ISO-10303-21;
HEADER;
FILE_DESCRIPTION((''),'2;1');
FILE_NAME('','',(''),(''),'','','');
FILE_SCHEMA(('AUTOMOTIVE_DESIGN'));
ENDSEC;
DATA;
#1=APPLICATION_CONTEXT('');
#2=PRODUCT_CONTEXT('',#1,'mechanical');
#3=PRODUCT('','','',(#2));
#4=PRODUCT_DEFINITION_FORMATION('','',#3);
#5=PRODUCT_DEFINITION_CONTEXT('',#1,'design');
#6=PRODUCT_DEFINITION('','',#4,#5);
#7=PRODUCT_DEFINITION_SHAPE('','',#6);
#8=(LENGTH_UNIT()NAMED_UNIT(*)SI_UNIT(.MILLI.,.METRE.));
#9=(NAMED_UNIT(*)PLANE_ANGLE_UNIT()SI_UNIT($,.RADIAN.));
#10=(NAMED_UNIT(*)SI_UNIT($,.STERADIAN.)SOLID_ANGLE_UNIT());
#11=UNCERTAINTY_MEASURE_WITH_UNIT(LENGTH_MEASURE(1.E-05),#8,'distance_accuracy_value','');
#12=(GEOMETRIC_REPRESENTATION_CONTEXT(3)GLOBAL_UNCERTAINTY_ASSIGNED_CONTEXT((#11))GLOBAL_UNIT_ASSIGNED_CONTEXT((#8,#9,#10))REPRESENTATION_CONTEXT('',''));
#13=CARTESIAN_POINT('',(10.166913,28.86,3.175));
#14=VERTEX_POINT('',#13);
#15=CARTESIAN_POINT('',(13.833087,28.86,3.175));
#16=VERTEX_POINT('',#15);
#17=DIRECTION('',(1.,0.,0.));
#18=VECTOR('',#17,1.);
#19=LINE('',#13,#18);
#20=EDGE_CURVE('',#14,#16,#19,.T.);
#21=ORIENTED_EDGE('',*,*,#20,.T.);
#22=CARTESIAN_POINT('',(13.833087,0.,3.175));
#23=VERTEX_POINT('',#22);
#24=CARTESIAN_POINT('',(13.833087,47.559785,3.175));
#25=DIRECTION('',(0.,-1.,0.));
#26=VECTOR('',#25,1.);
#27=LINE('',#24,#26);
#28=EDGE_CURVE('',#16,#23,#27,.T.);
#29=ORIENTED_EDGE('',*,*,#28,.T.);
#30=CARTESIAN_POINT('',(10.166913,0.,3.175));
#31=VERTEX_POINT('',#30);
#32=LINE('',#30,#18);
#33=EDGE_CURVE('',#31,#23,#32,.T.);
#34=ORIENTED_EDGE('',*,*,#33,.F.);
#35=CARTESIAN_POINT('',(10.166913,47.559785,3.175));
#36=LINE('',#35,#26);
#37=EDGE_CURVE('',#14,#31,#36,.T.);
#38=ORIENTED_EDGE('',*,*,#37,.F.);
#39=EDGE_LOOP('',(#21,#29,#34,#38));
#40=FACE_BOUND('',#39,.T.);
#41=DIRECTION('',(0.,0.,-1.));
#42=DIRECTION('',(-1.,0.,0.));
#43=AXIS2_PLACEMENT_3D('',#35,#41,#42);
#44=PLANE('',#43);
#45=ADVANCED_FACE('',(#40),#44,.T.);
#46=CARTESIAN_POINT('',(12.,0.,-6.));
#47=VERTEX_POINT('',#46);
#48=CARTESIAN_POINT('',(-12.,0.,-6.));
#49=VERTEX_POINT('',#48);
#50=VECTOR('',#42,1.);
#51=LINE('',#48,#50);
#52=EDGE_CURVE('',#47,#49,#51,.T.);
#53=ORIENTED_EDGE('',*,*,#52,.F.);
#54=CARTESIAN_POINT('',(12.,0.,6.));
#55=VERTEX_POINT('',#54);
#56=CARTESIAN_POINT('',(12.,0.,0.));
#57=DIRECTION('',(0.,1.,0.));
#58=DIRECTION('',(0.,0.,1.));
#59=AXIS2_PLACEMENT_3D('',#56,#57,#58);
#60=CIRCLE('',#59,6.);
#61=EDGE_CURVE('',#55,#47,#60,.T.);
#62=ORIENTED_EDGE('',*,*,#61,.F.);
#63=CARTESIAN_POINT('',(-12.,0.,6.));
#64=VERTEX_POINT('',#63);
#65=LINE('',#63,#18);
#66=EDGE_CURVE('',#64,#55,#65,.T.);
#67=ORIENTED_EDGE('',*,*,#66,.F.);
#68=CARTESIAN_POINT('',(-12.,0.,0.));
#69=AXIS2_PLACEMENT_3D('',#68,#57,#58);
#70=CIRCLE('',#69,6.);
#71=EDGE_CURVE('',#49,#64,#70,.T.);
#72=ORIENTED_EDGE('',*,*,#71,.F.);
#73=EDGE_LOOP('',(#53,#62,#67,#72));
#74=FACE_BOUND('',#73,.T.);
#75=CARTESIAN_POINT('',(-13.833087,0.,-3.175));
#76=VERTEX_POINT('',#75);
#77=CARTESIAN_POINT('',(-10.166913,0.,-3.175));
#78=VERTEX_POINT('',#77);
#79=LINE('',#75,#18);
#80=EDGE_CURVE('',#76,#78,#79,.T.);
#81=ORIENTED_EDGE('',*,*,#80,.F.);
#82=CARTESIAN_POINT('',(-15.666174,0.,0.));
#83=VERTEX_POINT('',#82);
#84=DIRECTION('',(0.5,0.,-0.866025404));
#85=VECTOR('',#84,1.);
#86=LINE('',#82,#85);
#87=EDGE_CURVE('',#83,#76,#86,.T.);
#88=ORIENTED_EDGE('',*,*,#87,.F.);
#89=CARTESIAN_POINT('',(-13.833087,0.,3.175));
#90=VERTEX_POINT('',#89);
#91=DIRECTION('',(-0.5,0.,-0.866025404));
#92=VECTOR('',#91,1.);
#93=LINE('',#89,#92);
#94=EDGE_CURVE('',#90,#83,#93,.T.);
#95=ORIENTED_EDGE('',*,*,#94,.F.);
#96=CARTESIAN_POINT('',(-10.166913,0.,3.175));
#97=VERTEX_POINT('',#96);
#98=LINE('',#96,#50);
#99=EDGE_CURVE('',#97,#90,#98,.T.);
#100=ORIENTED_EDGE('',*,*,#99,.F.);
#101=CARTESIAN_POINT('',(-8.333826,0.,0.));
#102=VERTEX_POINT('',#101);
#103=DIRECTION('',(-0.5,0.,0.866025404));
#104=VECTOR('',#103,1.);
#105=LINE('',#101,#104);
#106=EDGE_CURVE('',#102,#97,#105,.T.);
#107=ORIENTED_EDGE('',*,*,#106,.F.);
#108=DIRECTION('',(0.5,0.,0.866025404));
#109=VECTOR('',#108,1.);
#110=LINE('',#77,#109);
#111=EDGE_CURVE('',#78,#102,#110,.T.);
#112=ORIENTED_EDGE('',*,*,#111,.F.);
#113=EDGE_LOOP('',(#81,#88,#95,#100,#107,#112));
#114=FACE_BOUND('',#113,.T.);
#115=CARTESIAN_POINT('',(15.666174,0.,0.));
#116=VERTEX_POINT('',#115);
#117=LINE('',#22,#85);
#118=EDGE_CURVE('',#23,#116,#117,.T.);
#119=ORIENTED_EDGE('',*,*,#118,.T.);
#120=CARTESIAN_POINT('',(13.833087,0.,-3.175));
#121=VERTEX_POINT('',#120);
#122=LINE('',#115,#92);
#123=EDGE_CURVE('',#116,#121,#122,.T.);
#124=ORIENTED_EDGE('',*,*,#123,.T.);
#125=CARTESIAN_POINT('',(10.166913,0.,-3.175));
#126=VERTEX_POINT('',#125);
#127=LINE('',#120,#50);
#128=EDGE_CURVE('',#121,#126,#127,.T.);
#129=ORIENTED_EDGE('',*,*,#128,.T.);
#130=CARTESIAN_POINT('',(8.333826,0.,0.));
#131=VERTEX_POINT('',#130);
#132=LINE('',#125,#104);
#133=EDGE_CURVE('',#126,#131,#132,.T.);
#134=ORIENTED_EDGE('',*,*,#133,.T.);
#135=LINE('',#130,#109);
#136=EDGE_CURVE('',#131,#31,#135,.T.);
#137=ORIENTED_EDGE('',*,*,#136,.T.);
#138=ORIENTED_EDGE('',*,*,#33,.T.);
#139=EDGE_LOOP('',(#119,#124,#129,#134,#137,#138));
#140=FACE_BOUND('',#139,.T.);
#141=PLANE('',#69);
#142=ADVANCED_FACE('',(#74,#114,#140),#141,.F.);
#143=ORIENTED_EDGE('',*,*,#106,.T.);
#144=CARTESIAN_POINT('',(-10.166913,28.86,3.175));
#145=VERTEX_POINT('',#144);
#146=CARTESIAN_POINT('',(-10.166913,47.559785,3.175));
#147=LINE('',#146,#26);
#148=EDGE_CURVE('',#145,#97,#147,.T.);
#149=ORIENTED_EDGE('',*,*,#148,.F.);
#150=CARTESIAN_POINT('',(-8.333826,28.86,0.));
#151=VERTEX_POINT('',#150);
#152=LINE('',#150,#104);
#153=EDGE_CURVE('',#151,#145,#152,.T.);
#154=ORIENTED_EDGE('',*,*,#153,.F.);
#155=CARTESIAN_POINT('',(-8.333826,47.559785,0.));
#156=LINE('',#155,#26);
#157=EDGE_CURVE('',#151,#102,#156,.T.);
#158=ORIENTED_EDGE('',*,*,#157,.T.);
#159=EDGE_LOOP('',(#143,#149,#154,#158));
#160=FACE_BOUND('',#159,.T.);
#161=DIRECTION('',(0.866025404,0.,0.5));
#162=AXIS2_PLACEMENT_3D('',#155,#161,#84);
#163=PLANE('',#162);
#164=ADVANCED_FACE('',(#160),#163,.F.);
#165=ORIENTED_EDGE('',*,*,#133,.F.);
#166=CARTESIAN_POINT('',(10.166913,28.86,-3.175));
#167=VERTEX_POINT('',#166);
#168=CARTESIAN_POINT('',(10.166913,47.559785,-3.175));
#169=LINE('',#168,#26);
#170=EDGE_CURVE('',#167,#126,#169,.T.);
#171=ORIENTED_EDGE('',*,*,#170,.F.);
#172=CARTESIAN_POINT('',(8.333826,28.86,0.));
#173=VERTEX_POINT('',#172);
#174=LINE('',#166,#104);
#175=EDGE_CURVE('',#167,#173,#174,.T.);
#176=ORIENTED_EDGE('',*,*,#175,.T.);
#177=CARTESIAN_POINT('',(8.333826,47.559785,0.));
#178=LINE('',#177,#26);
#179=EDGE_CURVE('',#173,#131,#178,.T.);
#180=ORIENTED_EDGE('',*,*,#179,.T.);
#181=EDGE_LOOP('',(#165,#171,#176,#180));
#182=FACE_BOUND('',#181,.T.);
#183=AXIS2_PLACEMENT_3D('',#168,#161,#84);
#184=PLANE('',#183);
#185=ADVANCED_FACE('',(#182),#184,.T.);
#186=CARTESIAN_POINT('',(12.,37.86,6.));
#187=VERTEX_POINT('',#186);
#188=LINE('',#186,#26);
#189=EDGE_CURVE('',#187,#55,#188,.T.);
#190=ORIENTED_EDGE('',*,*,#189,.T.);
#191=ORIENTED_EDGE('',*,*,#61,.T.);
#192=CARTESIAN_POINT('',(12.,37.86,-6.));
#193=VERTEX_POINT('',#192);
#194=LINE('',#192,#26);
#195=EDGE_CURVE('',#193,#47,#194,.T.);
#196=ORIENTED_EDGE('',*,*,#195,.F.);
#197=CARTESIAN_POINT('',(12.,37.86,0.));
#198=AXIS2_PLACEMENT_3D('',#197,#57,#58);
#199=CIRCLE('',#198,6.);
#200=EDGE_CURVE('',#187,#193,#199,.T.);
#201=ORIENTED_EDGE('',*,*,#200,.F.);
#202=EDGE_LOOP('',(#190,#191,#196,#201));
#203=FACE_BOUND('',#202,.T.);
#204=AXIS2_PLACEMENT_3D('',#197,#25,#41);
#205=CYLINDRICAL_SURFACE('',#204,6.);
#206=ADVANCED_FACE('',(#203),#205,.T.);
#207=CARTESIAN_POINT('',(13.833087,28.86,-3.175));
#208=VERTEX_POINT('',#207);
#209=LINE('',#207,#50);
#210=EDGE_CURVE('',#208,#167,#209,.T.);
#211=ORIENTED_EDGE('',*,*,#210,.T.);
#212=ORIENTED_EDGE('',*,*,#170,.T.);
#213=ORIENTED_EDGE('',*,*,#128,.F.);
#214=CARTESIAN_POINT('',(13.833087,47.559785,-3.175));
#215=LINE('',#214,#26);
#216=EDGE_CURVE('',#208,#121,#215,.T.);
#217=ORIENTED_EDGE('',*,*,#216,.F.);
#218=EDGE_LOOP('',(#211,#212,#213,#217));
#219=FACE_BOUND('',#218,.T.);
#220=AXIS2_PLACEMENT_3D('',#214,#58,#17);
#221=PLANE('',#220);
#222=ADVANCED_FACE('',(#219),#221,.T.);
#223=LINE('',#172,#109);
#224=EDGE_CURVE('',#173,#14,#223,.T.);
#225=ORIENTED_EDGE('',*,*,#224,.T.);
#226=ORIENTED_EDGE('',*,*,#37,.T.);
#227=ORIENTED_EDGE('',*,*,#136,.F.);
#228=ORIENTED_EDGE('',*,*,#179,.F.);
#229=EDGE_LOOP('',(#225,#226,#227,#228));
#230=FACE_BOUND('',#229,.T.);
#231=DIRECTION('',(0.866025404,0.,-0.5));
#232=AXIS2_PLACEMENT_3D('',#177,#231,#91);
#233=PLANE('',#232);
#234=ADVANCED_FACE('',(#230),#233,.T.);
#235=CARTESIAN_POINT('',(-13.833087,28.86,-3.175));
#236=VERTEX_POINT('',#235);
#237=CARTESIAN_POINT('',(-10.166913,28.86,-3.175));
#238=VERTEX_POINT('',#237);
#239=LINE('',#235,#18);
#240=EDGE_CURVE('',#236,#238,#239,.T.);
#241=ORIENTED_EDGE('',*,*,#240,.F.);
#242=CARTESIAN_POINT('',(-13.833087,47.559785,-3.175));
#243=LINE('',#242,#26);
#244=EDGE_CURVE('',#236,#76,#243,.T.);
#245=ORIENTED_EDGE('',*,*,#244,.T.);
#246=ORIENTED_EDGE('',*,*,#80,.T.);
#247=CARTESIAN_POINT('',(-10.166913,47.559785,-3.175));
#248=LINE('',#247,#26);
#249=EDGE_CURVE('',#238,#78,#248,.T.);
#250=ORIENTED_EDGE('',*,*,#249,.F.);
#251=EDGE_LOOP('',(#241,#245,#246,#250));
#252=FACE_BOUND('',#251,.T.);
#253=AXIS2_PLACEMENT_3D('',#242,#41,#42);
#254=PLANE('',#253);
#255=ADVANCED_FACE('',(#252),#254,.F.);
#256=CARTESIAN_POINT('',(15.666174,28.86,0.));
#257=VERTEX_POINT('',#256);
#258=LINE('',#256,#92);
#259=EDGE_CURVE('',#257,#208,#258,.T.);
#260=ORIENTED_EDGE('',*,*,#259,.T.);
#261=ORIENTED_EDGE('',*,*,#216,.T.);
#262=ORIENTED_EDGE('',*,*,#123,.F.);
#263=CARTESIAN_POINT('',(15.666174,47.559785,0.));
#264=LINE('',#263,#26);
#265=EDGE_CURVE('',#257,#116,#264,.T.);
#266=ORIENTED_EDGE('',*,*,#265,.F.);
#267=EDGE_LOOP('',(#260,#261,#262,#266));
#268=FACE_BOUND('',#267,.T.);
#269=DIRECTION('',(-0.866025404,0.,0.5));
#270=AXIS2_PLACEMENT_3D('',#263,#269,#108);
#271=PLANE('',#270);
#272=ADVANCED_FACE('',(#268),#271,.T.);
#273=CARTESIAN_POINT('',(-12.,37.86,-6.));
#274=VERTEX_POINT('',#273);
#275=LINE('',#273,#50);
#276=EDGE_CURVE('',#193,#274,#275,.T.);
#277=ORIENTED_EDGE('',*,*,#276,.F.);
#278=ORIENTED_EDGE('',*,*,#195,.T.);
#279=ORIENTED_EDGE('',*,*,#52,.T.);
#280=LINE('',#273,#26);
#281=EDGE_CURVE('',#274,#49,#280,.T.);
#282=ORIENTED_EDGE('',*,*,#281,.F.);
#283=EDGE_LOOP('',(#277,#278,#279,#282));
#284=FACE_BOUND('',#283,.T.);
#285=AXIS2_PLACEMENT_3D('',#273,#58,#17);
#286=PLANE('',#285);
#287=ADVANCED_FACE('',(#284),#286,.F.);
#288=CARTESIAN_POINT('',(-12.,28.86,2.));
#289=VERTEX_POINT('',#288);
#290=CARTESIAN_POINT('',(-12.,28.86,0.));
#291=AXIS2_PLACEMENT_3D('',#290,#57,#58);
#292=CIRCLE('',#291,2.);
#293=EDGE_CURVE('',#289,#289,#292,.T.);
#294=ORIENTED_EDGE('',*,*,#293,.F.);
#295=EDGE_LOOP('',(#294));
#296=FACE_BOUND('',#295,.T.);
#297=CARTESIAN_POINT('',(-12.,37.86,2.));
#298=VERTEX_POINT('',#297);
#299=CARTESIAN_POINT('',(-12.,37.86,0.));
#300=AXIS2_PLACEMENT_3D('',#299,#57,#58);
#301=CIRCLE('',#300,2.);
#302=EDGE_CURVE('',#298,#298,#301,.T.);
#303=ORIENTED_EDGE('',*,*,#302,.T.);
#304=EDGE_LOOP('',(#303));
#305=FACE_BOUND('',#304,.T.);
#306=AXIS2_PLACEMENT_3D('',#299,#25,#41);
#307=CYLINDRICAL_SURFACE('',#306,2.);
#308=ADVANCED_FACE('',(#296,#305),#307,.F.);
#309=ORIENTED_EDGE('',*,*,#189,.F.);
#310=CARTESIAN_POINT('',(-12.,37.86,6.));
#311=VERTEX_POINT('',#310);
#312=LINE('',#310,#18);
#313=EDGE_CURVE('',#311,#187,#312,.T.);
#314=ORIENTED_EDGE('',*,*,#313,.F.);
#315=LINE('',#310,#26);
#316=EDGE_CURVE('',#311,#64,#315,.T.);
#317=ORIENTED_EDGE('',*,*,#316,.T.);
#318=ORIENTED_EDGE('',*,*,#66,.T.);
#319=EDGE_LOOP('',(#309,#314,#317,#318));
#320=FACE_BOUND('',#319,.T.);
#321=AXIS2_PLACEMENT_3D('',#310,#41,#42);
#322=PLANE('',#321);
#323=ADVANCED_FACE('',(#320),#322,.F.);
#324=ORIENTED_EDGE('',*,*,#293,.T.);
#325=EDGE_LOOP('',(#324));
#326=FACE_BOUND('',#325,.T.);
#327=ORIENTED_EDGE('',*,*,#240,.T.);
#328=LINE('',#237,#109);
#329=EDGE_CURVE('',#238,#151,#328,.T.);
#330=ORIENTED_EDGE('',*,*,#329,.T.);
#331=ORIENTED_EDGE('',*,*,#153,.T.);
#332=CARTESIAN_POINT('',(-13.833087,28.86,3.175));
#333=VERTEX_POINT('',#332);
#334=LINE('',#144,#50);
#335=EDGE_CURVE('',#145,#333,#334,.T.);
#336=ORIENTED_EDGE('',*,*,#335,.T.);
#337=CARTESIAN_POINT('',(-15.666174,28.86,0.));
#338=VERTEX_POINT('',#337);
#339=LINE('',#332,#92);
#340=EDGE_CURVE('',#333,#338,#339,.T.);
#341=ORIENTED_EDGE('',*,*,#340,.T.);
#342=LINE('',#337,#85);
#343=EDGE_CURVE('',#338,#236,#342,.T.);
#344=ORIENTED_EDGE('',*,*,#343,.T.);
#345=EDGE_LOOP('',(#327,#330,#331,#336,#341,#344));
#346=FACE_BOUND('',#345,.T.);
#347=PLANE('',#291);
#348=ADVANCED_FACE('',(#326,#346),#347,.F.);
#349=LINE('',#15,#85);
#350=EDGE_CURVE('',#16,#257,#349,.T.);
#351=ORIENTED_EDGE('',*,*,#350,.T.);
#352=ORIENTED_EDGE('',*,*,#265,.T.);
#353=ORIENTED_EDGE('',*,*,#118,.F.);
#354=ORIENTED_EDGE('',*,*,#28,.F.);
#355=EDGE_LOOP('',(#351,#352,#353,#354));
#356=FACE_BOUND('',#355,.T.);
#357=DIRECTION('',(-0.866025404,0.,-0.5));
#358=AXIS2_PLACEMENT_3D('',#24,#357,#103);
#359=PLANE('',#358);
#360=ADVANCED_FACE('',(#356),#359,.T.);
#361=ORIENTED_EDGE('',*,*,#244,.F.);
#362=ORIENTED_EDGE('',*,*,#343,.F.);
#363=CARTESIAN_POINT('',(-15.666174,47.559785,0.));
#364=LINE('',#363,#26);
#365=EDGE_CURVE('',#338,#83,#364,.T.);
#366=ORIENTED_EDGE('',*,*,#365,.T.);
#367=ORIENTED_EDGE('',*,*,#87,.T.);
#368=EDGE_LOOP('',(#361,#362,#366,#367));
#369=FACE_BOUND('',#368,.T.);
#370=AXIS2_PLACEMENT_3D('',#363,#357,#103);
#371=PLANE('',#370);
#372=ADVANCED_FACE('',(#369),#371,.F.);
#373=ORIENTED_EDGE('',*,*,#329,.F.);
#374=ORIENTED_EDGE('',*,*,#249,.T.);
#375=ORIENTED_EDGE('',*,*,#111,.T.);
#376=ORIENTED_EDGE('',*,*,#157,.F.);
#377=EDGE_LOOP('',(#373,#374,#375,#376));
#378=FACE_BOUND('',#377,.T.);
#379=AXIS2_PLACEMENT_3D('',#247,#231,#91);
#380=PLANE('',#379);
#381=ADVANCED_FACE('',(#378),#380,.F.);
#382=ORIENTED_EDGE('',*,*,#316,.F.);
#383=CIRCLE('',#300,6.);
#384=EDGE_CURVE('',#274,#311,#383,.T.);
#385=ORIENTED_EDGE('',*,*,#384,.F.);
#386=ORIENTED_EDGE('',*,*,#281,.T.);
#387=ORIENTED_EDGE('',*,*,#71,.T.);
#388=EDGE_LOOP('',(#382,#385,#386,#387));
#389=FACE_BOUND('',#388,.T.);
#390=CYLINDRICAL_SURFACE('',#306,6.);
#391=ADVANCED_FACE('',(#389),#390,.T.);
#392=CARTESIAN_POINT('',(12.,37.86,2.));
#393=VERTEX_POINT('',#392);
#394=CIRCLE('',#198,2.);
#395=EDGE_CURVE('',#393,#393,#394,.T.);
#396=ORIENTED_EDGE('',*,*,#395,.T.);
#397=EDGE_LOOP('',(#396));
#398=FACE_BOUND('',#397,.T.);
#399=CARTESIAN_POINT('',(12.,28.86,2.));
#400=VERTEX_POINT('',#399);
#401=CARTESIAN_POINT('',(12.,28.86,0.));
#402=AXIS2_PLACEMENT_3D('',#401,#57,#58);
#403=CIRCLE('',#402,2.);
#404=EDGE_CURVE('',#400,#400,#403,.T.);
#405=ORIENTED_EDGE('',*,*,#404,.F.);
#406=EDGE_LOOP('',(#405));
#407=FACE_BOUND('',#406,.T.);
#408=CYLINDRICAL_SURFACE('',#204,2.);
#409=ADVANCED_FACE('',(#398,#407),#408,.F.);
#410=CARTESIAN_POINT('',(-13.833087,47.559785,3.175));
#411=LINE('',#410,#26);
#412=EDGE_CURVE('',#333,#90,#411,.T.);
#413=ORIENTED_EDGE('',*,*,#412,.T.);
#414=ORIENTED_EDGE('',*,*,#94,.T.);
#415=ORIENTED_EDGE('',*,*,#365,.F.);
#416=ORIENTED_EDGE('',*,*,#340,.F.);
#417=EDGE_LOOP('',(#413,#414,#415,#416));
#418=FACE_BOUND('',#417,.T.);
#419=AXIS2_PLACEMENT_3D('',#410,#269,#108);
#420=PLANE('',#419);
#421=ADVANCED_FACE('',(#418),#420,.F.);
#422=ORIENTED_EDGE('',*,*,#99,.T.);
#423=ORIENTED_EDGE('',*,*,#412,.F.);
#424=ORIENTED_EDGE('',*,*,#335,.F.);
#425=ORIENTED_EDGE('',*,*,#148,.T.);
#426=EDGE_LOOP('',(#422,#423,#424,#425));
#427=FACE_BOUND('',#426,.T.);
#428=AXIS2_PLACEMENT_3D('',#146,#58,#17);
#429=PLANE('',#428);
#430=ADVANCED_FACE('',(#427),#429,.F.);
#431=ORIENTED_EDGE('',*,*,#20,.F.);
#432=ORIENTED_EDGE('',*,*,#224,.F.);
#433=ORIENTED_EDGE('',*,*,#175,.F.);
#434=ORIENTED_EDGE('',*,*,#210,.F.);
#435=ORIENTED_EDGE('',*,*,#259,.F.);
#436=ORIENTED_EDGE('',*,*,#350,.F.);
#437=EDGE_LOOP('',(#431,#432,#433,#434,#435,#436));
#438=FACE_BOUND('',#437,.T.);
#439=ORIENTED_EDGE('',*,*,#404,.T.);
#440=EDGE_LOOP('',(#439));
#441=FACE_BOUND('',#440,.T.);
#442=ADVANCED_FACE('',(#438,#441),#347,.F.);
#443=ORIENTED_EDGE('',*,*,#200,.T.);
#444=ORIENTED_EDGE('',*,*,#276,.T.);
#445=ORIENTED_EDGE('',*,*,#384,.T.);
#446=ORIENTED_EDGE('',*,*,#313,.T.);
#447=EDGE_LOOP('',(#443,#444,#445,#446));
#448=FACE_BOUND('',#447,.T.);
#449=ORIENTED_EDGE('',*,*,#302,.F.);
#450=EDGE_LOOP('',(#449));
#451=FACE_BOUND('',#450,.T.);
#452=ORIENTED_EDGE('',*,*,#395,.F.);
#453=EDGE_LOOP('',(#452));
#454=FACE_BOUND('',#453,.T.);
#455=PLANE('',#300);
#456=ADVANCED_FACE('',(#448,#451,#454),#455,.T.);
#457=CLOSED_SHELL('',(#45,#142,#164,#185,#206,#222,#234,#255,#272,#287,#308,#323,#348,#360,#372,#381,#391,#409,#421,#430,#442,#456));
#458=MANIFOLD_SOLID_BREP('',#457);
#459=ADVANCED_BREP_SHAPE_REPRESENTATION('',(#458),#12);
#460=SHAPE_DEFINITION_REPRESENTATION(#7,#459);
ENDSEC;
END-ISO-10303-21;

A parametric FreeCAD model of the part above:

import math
import FreeCAD as App
import Part
import Sketcher
from FreeCAD import Vector
Q = App.Units.Quantity


def add_polygon(sketch, points):
    """Adds a closed chain of lines whose ends are joined by coincident constraints."""
    first, n = sketch.GeometryCount, len(points)
    for a, b in zip(points, points[1:] + points[:1]):
        sketch.addGeometry(Part.LineSegment(App.Vector(*a, 0), App.Vector(*b, 0)), False)
    for i in range(n):
        sketch.addConstraint(Sketcher.Constraint("Coincident", first + i, 2, first + (i + 1) % n, 1))

doc = App.newDocument("Part")
body = doc.addObject("PartDesign::Body", "Body")

# Sketch on XZ plane
sketch1 = body.newObject("Sketcher::SketchObject", "Sketch")
sketch1.AttachmentSupport = (doc.getObject("XZ_Plane"), [""])
sketch1.MapMode = "FlatFace"
sketch1.addGeometry(Part.LineSegment(Vector(12, -6, 0), Vector(-12, -6, 0)), False)
sketch1.addGeometry(Part.ArcOfCircle(Part.Circle(Vector(-12, 0, 0), Vector(0, 0, 1), 6), math.radians(90), math.radians(270)), False)
sketch1.addGeometry(Part.LineSegment(Vector(-12, 6, 0), Vector(12, 6, 0)), False)
sketch1.addGeometry(Part.ArcOfCircle(Part.Circle(Vector(12, 0, 0), Vector(0, 0, 1), 6), math.radians(-90), math.radians(90)), False)
sketch1.addGeometry(Part.Circle(Vector(12, 0, 0), Vector(0, 0, 1), 2), False)
sketch1.addGeometry(Part.Circle(Vector(-12, 0, 0), Vector(0, 0, 1), 2), False)
sketch1.addConstraint(Sketcher.Constraint("Tangent", 0, 2, 1, 2))
sketch1.addConstraint(Sketcher.Constraint("Tangent", 1, 1, 2, 1))
sketch1.addConstraint(Sketcher.Constraint("Tangent", 2, 2, 3, 2))
sketch1.addConstraint(Sketcher.Constraint("Tangent", 3, 1, 0, 1))
sketch1.addConstraint(Sketcher.Constraint("Horizontal", 0))
sketch1.addConstraint(Sketcher.Constraint("Horizontal", 2))
sketch1.addConstraint(Sketcher.Constraint("Coincident", 4, 3, 3, 3))
sketch1.addConstraint(Sketcher.Constraint("Coincident", 5, 3, 1, 3))
sketch1.addConstraint(Sketcher.Constraint("Equal", 4, 5))
sketch1.addConstraint(Sketcher.Constraint("Symmetric", 1, 3, 3, 3, -1, 1))
sketch1.addConstraint(Sketcher.Constraint("Diameter", 4, Q("4 mm")))
sketch1.addConstraint(Sketcher.Constraint("Radius", 1, Q("6 mm")))
sketch1.addConstraint(Sketcher.Constraint("DistanceX", 0, 2, 0, 1, Q("24 mm")))
pad1 = body.newObject("PartDesign::Pad", "Pad")
pad1.Profile = sketch1
pad1.Length = 37.86
pad1.Reversed = True

# Sketch on XZ plane
sketch2 = body.newObject("Sketcher::SketchObject", "Sketch001")
sketch2.AttachmentSupport = (doc.getObject("XZ_Plane"), [""])
sketch2.MapMode = "FlatFace"
add_polygon(sketch2, [(-13.833087, 3.175), (-15.666174, 0), (-13.833087, -3.175), (-10.166913, -3.175), (-8.333826, 0), (-10.166913, 3.175)])  # lines 0-5
sketch2.addConstraint(Sketcher.Constraint("Horizontal", 2))
sketch2.addConstraint(Sketcher.Constraint("Horizontal", 5))
sketch2.addConstraint(Sketcher.Constraint("Symmetric", 2, 2, 4, 2, -1))
sketch2.addConstraint(Sketcher.Constraint("PointOnObject", 0, 2, -1))
sketch2.addConstraint(Sketcher.Constraint("PointOnObject", 3, 2, -1))
sketch2.addConstraint(Sketcher.Constraint("Parallel", 0, 3))
sketch2.addConstraint(Sketcher.Constraint("Parallel", 1, 4))
sketch2.addConstraint(Sketcher.Constraint("Angle", 0, Q("-120 deg")))
sketch2.addConstraint(Sketcher.Constraint("DistanceY", 2, 2, 4, 2, Q("6.35 mm")))
sketch2.addConstraint(Sketcher.Constraint("DistanceX", 2, 1, 2, 2, Q("3.666174 mm")))
sketch2.addConstraint(Sketcher.Constraint("DistanceX", 0, 2, -1, 1, Q("15.666174 mm")))
pocket1 = body.newObject("PartDesign::Pocket", "Pocket")
pocket1.Profile = sketch2
pocket1.Length = 28.86
doc.recompute()

mirrored = body.newObject("PartDesign::Mirrored", "Mirrored")
mirrored.Originals = [pocket1]
mirrored.MirrorPlane = (doc.getObject("YZ_Plane"), [""])
body.Tip = mirrored

doc.recompute()
